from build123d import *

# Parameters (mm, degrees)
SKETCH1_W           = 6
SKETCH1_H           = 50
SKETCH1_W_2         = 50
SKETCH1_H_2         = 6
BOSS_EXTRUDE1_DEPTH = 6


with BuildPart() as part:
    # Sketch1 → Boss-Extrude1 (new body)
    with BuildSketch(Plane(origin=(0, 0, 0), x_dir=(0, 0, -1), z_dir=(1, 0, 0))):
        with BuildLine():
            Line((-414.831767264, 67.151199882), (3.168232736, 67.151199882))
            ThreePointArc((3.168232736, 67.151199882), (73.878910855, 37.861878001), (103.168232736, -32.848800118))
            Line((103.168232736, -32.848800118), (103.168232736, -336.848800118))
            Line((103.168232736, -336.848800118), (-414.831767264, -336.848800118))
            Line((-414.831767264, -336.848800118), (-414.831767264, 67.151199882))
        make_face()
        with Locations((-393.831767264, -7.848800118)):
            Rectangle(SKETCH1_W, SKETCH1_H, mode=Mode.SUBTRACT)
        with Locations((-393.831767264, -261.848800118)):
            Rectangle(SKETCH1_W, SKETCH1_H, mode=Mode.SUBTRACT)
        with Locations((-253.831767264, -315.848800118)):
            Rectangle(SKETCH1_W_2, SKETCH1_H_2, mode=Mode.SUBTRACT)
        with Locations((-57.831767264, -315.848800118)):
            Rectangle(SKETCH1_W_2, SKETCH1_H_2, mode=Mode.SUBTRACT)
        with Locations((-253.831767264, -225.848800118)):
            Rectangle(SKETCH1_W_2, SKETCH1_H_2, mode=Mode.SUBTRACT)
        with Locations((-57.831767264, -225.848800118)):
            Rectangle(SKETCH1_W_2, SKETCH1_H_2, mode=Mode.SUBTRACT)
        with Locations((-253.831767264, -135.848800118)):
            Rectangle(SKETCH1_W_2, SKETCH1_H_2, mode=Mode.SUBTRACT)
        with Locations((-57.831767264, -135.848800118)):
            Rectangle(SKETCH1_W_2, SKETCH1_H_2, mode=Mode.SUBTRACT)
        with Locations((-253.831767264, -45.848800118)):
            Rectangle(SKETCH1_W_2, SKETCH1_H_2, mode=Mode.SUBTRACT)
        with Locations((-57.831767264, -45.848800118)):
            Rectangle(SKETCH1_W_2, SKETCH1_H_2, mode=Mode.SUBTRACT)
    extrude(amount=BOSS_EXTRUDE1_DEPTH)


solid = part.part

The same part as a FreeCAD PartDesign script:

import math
import FreeCAD as App
import Part
import Sketcher


def add_polygon(sketch, points):
    """Adds a closed chain of lines whose ends are joined by coincident constraints."""
    first, n = sketch.GeometryCount, len(points)
    for a, b in zip(points, points[1:] + points[:1]):
        sketch.addGeometry(Part.LineSegment(App.Vector(*a, 0), App.Vector(*b, 0)), False)
    for i in range(n):
        sketch.addConstraint(Sketcher.Constraint("Coincident", first + i, 2, first + (i + 1) % n, 1))

doc = App.newDocument("Part")
body = doc.addObject("PartDesign::Body", "Body")

sketch1 = doc.addObject("Sketcher::SketchObject", "Sketch")
body.addObject(sketch1)
sketch1.AttachmentSupport = (doc.YZ_Plane, [""])
sketch1.MapMode = "FlatFace"
sketch1.addGeometry(Part.LineSegment(App.Vector(67, -3, 0), App.Vector(67, 415, 0)), False)
sketch1.addGeometry(Part.LineSegment(App.Vector(67, 415, 0), App.Vector(-337, 415, 0)), False)
sketch1.addGeometry(Part.LineSegment(App.Vector(-337, 415, 0), App.Vector(-337, -103, 0)), False)
sketch1.addGeometry(Part.LineSegment(App.Vector(-337, -103, 0), App.Vector(-33, -103, 0)), False)
sketch1.addGeometry(Part.ArcOfCircle(Part.Circle(App.Vector(-33, -3, 0), App.Vector(0, 0, 1), 100), math.radians(-90), math.radians(0)), False)
add_polygon(sketch1, [(-319, 83), (-313, 83), (-313, 33), (-319, 33)])
add_polygon(sketch1, [(-229, 83), (-223, 83), (-223, 33), (-229, 33)])
add_polygon(sketch1, [(-319, 279), (-313, 279), (-313, 229), (-319, 229)])
add_polygon(sketch1, [(-287, 397), (-237, 397), (-237, 391), (-287, 391)])
add_polygon(sketch1, [(-229, 279), (-223, 279), (-223, 229), (-229, 229)])
add_polygon(sketch1, [(-139, 83), (-133, 83), (-133, 33), (-139, 33)])
add_polygon(sketch1, [(-49, 83), (-43, 83), (-43, 33), (-49, 33)])
add_polygon(sketch1, [(-139, 279), (-133, 279), (-133, 229), (-139, 229)])
add_polygon(sketch1, [(-49, 279), (-43, 279), (-43, 229), (-49, 229)])
add_polygon(sketch1, [(-33, 397), (17, 397), (17, 391), (-33, 391)])
sketch1.addConstraint([
    Sketcher.Constraint("Coincident", 0, 2, 1, 1),
    Sketcher.Constraint("Coincident", 1, 2, 2, 1),
    Sketcher.Constraint("Coincident", 2, 2, 3, 1),
    Sketcher.Constraint("Tangent", 3, 2, 4, 1),
    Sketcher.Constraint("Tangent", 4, 2, 0, 1),
    Sketcher.Constraint("Vertical", 0),
    Sketcher.Constraint("Horizontal", 1),
    Sketcher.Constraint("Vertical", 2),
    Sketcher.Constraint("Horizontal", 3),
    Sketcher.Constraint("Horizontal", 5),
    Sketcher.Constraint("Vertical", 6),
    Sketcher.Constraint("Horizontal", 7),
    Sketcher.Constraint("Vertical", 8),
    Sketcher.Constraint("Horizontal", 9),
    Sketcher.Constraint("Vertical", 10),
    Sketcher.Constraint("Horizontal", 11),
    Sketcher.Constraint("Vertical", 12),
    Sketcher.Constraint("Horizontal", 13),
    Sketcher.Constraint("Vertical", 14),
    Sketcher.Constraint("Horizontal", 15),
    Sketcher.Constraint("Vertical", 16),
    Sketcher.Constraint("Horizontal", 17),
    Sketcher.Constraint("Vertical", 18),
    Sketcher.Constraint("Horizontal", 19),
    Sketcher.Constraint("Vertical", 20),
    Sketcher.Constraint("Horizontal", 21),
    Sketcher.Constraint("Vertical", 22),
    Sketcher.Constraint("Horizontal", 23),
    Sketcher.Constraint("Vertical", 24),
    Sketcher.Constraint("Horizontal", 25),
    Sketcher.Constraint("Vertical", 26),
    Sketcher.Constraint("Horizontal", 27),
    Sketcher.Constraint("Vertical", 28),
    Sketcher.Constraint("Horizontal", 29),
    Sketcher.Constraint("Vertical", 30),
    Sketcher.Constraint("Horizontal", 31),
    Sketcher.Constraint("Vertical", 32),
    Sketcher.Constraint("Horizontal", 33),
    Sketcher.Constraint("Vertical", 34),
    Sketcher.Constraint("Horizontal", 35),
    Sketcher.Constraint("Vertical", 36),
    Sketcher.Constraint("Horizontal", 37),
    Sketcher.Constraint("Vertical", 38),
    Sketcher.Constraint("Horizontal", 39),
    Sketcher.Constraint("Vertical", 40),
    Sketcher.Constraint("Horizontal", 41),
    Sketcher.Constraint("Vertical", 42),
    Sketcher.Constraint("Horizontal", 43),
    Sketcher.Constraint("Vertical", 44),
    Sketcher.Constraint("Horizontal", 8, 2, 9, 2),
    Sketcher.Constraint("Horizontal", 7, 2, 10, 2),
    Sketcher.Constraint("Horizontal", 16, 2, 21, 2),
    Sketcher.Constraint("Horizontal", 15, 2, 22, 2),
    Sketcher.Constraint("Horizontal", 12, 2, 25, 2),
    Sketcher.Constraint("Horizontal", 11, 2, 26, 2),
    Sketcher.Constraint("Horizontal", 28, 2, 29, 2),
    Sketcher.Constraint("Horizontal", 27, 2, 30, 2),
    Sketcher.Constraint("Horizontal", 24, 2, 33, 2),
    Sketcher.Constraint("Horizontal", 23, 2, 34, 2),
    Sketcher.Constraint("Horizontal", 36, 2, 37, 2),
    Sketcher.Constraint("Horizontal", 35, 2, 38, 2),
    Sketcher.Constraint("Horizontal", 20, 2, 41, 2),
    Sketcher.Constraint("Horizontal", 19, 2, 42, 2),
    Sketcher.Constraint("Vertical", 6, 2, 13, 2),
    Sketcher.Constraint("Vertical", 8, 2, 15, 2),
    Sketcher.Constraint("Vertical", 10, 2, 21, 2),
    Sketcher.Constraint("Vertical", 12, 2, 23, 2),
    Sketcher.Constraint("Vertical", 26, 2, 33, 2),
    Sketcher.Constraint("Vertical", 28, 2, 35, 2),
    Sketcher.Constraint("Vertical", 30, 2, 37, 2),
    Sketcher.Constraint("Vertical", 32, 2, 39, 2),
    Sketcher.Constraint("Vertical", 3, 2, 43, 2),
    Sketcher.Constraint("Equal", 7, 9),
    Sketcher.Constraint("Equal", 23, 25),
    Sketcher.Constraint("Equal", 27, 29),
    Sketcher.Constraint("Equal", 19, 41),
    Sketcher.Constraint("Equal", 43, 6),
    Sketcher.Constraint("Equal", 12, 14),
    Sketcher.Constraint("Equal", 39, 18),
    Sketcher.Constraint("Radius", 4, 100.0),
    Sketcher.Constraint("DistanceX", 1, 2, 1, 1, 404.0),
    Sketcher.Constraint("DistanceX", 5, 1, 5, 2, 6.0),
    Sketcher.Constraint("DistanceX", 17, 1, 17, 2, 50.0),
    Sketcher.Constraint("DistanceY", 0, 1, 0, 2, 418.0),
    Sketcher.Constraint("DistanceX", 2, 2, 5, 2, 24.0),
    Sketcher.Constraint("DistanceY", 2, 2, 5, 2, 186.0),
    Sketcher.Constraint("DistanceX", 5, 2, 9, 2, 90.0),
    Sketcher.Constraint("DistanceY", 13, 2, 1, 2, 136.0),
    Sketcher.Constraint("DistanceX", 1, 2, 17, 2, 100.0),
    Sketcher.Constraint("DistanceY", 17, 2, 1, 2, 18.0),
    Sketcher.Constraint("DistanceX", 9, 2, 25, 2, 90.0),
    Sketcher.Constraint("DistanceX", 29, 2, 4, 3, 10.0),
    Sketcher.Constraint("DistanceX", 4, 3, -1, 1, 32.8488),
    Sketcher.Constraint("DistanceY", 4, 3, -1, 1, 3.168233),
])
pad1 = doc.addObject("PartDesign::Pad", "Pad")
body.addObject(pad1)
pad1.Profile = sketch1
pad1.Length = 6

doc.recompute()
